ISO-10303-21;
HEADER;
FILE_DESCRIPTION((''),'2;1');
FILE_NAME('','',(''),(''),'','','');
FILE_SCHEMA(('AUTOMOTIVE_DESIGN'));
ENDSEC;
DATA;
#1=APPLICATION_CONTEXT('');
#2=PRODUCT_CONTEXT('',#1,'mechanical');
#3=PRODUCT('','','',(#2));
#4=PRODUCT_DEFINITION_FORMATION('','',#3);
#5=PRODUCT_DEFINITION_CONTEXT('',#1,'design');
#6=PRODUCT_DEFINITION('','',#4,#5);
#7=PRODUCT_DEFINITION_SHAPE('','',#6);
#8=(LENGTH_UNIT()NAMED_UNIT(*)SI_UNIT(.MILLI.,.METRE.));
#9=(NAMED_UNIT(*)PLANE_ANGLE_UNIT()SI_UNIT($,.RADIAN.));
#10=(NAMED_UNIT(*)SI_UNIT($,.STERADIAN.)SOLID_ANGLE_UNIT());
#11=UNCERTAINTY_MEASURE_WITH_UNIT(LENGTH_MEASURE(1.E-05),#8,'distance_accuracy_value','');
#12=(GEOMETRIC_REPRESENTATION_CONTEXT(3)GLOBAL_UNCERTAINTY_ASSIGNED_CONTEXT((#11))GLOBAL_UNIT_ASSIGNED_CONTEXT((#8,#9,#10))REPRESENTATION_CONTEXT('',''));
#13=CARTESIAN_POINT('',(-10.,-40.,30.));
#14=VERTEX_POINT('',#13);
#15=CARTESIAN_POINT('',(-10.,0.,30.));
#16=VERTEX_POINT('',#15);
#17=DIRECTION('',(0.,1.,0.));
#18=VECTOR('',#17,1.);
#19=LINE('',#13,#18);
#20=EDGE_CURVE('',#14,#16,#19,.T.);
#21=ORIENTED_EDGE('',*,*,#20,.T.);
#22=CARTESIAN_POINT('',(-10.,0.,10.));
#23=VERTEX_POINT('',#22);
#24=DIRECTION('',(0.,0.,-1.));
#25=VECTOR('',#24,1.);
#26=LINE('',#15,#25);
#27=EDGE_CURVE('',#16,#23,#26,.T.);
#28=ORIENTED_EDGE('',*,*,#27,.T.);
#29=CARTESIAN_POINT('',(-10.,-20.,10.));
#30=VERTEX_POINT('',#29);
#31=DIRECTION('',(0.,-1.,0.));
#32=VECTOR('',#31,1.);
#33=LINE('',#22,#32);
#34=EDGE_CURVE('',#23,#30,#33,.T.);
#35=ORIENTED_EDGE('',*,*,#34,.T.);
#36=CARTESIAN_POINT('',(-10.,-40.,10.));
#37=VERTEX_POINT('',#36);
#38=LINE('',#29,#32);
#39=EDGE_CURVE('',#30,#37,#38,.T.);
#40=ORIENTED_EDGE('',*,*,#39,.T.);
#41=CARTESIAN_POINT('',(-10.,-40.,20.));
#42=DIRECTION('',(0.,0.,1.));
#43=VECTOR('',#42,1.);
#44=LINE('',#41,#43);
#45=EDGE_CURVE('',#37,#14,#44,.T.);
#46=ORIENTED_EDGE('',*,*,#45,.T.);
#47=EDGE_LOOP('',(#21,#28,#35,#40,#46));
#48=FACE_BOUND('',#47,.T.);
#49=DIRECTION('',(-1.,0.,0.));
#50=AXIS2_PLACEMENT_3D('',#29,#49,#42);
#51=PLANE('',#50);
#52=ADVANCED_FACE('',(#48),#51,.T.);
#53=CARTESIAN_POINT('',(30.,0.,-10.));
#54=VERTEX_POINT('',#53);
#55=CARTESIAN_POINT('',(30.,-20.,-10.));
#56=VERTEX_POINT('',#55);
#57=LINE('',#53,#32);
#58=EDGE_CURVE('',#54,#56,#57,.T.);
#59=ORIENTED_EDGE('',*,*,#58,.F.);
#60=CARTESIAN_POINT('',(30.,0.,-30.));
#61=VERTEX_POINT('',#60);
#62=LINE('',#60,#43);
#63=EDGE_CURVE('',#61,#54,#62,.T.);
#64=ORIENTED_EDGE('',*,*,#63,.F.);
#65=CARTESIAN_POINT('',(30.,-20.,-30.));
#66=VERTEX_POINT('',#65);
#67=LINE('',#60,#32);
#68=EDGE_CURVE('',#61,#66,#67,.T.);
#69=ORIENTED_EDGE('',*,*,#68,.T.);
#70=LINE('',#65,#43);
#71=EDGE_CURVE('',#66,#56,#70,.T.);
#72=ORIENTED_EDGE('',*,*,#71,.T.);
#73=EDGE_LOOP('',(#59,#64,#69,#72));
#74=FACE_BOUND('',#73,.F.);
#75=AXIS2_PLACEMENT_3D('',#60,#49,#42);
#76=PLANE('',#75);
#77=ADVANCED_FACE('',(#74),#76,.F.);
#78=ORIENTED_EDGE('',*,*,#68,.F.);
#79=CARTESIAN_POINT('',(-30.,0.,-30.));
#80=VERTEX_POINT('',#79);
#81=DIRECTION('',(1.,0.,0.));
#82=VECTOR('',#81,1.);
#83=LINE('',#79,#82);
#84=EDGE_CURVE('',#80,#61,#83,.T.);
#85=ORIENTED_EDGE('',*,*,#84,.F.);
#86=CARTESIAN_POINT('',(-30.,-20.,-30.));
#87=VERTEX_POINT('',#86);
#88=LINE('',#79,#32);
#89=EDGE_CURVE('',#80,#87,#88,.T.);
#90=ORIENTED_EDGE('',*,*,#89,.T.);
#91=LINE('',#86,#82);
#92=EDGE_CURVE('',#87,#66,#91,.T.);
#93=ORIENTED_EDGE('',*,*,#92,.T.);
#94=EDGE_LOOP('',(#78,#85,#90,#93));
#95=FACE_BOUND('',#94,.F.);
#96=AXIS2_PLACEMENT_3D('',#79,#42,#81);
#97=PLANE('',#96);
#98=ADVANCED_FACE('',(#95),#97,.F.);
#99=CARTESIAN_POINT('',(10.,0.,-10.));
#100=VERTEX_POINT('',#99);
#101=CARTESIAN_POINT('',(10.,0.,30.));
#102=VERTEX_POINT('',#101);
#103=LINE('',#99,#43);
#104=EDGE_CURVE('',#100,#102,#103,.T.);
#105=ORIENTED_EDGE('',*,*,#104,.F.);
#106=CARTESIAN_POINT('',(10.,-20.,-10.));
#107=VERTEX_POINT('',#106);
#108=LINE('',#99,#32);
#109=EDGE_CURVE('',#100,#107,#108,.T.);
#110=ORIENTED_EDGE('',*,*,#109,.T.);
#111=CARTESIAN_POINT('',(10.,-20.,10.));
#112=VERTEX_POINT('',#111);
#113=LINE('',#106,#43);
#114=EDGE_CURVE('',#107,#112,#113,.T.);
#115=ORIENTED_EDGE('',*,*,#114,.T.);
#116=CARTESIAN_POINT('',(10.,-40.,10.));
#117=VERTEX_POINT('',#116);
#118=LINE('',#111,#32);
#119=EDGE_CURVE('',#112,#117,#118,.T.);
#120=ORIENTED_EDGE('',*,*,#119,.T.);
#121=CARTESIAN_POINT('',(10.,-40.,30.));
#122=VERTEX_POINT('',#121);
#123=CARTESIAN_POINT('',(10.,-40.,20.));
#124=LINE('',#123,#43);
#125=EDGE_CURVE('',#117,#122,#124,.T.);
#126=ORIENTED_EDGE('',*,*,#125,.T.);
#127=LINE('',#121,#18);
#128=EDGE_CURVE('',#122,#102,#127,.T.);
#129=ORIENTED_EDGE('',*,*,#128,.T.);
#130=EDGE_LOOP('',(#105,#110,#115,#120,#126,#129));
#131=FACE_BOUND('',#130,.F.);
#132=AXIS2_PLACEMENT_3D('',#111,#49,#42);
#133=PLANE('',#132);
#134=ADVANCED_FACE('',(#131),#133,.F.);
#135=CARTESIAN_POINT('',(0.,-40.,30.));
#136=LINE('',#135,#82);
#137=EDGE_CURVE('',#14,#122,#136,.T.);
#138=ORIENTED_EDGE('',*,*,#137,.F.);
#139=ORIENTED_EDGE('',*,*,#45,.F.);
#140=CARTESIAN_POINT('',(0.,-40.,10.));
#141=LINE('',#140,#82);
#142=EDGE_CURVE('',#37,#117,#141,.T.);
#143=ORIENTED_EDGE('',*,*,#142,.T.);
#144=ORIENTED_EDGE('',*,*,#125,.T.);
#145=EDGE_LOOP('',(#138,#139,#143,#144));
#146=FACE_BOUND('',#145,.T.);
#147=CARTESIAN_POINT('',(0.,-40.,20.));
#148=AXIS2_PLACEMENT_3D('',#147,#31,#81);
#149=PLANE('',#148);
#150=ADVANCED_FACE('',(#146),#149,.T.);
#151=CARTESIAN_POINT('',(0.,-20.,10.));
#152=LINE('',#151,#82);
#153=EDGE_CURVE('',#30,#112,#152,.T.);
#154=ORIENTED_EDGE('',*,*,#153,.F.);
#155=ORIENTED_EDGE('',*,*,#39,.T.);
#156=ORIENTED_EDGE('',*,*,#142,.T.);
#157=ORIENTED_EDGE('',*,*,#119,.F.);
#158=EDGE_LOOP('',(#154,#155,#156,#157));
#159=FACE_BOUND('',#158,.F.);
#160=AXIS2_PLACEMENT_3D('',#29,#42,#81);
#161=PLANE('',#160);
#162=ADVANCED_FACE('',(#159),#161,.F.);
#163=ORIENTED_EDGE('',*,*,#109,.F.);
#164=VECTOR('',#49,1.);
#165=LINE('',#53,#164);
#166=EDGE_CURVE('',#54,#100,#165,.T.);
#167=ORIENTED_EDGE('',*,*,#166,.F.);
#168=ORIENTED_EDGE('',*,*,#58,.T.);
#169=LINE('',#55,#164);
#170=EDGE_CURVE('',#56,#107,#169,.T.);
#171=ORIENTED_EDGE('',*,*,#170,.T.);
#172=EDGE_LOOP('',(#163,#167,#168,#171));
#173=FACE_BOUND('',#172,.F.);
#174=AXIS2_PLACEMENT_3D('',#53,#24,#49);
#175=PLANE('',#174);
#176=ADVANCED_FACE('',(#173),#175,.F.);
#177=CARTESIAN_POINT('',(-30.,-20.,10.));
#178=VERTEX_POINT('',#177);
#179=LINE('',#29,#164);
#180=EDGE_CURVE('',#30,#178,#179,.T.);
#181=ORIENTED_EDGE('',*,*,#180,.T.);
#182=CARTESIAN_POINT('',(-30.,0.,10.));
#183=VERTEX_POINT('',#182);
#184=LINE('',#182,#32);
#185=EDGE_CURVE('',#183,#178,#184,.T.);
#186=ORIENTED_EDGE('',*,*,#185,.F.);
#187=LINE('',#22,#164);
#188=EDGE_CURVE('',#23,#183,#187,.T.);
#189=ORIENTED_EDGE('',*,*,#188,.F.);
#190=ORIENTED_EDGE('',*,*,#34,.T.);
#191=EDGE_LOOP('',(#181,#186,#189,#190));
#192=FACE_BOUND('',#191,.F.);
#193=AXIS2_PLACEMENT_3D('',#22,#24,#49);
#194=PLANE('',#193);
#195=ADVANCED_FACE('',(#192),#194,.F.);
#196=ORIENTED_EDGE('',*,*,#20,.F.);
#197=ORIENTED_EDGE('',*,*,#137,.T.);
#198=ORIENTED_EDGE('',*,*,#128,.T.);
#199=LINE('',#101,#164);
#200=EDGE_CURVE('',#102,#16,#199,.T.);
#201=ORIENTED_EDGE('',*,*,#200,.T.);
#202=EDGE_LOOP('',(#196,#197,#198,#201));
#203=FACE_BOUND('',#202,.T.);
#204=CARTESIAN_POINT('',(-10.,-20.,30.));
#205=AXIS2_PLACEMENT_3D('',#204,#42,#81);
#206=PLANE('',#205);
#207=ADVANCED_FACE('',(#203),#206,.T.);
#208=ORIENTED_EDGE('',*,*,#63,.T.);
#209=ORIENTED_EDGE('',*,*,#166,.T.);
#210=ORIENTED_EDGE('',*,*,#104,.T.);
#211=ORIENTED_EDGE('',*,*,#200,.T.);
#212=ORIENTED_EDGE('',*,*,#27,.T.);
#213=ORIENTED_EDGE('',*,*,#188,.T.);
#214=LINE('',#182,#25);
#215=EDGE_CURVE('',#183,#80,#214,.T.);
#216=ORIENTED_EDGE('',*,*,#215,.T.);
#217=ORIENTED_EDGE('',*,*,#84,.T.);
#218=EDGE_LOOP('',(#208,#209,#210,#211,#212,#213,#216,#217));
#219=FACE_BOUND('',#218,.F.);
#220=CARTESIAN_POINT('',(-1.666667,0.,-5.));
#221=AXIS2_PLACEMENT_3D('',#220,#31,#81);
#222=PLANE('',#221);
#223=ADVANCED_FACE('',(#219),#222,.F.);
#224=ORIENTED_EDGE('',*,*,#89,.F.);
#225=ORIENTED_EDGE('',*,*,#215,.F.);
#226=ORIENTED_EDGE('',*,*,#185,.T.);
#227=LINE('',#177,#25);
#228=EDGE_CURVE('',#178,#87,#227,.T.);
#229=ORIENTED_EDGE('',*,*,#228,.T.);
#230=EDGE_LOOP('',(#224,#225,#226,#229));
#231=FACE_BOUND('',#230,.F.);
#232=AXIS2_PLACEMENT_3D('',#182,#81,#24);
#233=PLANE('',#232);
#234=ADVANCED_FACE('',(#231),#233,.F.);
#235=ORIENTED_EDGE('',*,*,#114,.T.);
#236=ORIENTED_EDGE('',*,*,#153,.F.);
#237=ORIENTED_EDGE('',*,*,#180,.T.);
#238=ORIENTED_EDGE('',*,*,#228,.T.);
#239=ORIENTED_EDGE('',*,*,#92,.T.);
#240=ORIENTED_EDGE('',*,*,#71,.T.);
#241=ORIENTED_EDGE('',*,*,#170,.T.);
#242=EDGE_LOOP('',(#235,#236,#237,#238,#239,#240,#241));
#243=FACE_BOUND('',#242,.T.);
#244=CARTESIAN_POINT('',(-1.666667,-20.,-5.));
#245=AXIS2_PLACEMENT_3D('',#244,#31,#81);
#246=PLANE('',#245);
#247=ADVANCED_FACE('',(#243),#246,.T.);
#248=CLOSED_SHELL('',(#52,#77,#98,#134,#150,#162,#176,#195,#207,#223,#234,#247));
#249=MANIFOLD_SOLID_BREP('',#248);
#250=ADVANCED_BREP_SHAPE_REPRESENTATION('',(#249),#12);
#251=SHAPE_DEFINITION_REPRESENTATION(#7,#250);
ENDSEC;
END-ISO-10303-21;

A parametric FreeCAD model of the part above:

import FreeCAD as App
import Part
import Sketcher
Q = App.Units.Quantity


def add_polygon(sketch, points):
    """Adds a closed chain of lines whose ends are joined by coincident constraints."""
    first, n = sketch.GeometryCount, len(points)
    for a, b in zip(points, points[1:] + points[:1]):
        sketch.addGeometry(Part.LineSegment(App.Vector(*a, 0), App.Vector(*b, 0)), False)
    for i in range(n):
        sketch.addConstraint(Sketcher.Constraint("Coincident", first + i, 2, first + (i + 1) % n, 1))

doc = App.newDocument("Part")
body = doc.addObject("PartDesign::Body", "Body")

sketch1 = body.newObject("Sketcher::SketchObject", "Sketch")
sketch1.AttachmentSupport = (doc.getObject("XZ_Plane"), [""])
sketch1.MapMode = "FlatFace"
add_polygon(sketch1, [(10, 30), (-10, 30), (-10, 10), (-30, 10), (-30, -30), (30, -30), (30, -10), (10, -10)])
sketch1.addConstraint(Sketcher.Constraint("Horizontal", 0))
sketch1.addConstraint(Sketcher.Constraint("Vertical", 1))
sketch1.addConstraint(Sketcher.Constraint("Horizontal", 2))
sketch1.addConstraint(Sketcher.Constraint("Vertical", 3))
sketch1.addConstraint(Sketcher.Constraint("Horizontal", 4))
sketch1.addConstraint(Sketcher.Constraint("Vertical", 5))
sketch1.addConstraint(Sketcher.Constraint("Horizontal", 6))
sketch1.addConstraint(Sketcher.Constraint("Vertical", 7))
sketch1.addConstraint(Sketcher.Constraint("Symmetric", 2, 2, 5, 2, -1, 1))
sketch1.addConstraint(Sketcher.Constraint("Equal", 0, 2))
sketch1.addConstraint(Sketcher.Constraint("Equal", 2, 6))
sketch1.addConstraint(Sketcher.Constraint("Equal", 6, 1))
sketch1.addConstraint(Sketcher.Constraint("Equal", 1, 5))
sketch1.addConstraint(Sketcher.Constraint("DistanceX", 0, 2, 0, 1, Q("20 mm")))
sketch1.addConstraint(Sketcher.Constraint("DistanceY", 3, 2, 3, 1, Q("40 mm")))
pad1 = body.newObject("PartDesign::Pad", "Pad")
pad1.Profile = sketch1
pad1.Length = 20

sketch2 = body.newObject("Sketcher::SketchObject", "Sketch001")
sketch2.AttachmentSupport = (doc.getObject("XZ_Plane"), [""])
sketch2.MapMode = "FlatFace"
sketch2.AttachmentOffset = App.Placement(App.Vector(0, 0, 20), App.Rotation())
add_polygon(sketch2, [(-10, 30), (-10, 10), (10, 10), (10, 30)])
sketch2.addConstraint(Sketcher.Constraint("Vertical", 0))
sketch2.addConstraint(Sketcher.Constraint("Horizontal", 1))
sketch2.addConstraint(Sketcher.Constraint("Vertical", 2))
sketch2.addConstraint(Sketcher.Constraint("Horizontal", 3))
sketch2.addConstraint(Sketcher.Constraint("Equal", 3, 0))
sketch2.addConstraint(Sketcher.Constraint("DistanceX", 1, 1, 1, 2, Q("20 mm")))
sketch2.addConstraint(Sketcher.Constraint("DistanceX", 0, 2, -1, 1, Q("10 mm")))
sketch2.addConstraint(Sketcher.Constraint("DistanceY", -1, 1, 0, 2, Q("10 mm")))
pad2 = body.newObject("PartDesign::Pad", "Pad001")
pad2.Profile = sketch2
pad2.Length = 20

doc.recompute()
